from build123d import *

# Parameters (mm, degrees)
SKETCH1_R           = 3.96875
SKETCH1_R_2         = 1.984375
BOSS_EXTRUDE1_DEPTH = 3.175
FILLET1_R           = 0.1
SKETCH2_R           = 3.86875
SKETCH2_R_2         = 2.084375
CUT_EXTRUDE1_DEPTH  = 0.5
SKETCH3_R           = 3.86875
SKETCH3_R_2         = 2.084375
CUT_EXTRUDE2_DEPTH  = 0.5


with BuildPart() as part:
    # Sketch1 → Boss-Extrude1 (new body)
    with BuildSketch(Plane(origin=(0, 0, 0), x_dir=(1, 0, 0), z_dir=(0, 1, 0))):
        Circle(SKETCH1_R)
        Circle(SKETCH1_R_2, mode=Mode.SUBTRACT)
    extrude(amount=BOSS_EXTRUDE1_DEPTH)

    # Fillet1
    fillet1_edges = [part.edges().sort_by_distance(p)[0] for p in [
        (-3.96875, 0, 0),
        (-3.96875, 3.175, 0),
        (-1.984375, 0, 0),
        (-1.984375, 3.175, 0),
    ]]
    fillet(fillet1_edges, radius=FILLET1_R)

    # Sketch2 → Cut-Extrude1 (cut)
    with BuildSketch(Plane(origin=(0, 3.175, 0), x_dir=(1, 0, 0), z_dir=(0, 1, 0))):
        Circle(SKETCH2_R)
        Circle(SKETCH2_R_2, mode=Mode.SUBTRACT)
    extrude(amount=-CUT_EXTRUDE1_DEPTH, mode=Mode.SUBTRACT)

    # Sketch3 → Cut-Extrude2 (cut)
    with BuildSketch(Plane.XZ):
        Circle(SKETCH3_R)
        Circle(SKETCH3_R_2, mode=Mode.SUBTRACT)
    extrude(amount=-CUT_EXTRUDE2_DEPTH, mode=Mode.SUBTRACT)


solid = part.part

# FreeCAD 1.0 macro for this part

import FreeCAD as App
import Part
import Sketcher

V = App.Vector
Q = App.Units.Quantity


def edges_at(feature, points):
    """Names of the edges that pass closest to the given points."""
    edges = feature.Shape.Edges
    near = lambda p: min(range(len(edges)), key=lambda i: edges[i].distToShape(Part.Vertex(*p))[0])
    return sorted({f"Edge{near(p) + 1}" for p in points})

doc = App.newDocument("Part")
body = doc.addObject("PartDesign::Body", "Body")

sketch1 = body.newObject("Sketcher::SketchObject", "Sketch")
sketch1.AttachmentSupport = (doc.getObject("XZ_Plane"), [""])
sketch1.MapMode = "FlatFace"
sketch1.addGeometry(Part.Circle(V(0, 0, 0), V(0, 0, 1), 3.96875), False)
sketch1.addGeometry(Part.Circle(V(0, 0, 0), V(0, 0, 1), 1.984375), False)
sketch1.addConstraint(Sketcher.Constraint("Coincident", 0, 3, -1, 1))
sketch1.addConstraint(Sketcher.Constraint("Coincident", 1, 3, -1, 1))
sketch1.addConstraint(Sketcher.Constraint("Diameter", 0, Q("0.3125 in")))
sketch1.addConstraint(Sketcher.Constraint("Diameter", 1, Q("0.15625 in")))
pad1 = body.newObject("PartDesign::Pad", "Pad")
pad1.Profile = sketch1
pad1.Length = Q("0.125 in")
pad1.Reversed = True
doc.recompute()

fillet = body.newObject("PartDesign::Fillet", "Fillet")
fillet.Base = (pad1, edges_at(pad1, [
    (-3.969, 0, 0),
    (-3.969, 3.175, 0),
    (-1.984, 0, 0),
    (-1.984, 3.175, 0),
]))
fillet.Radius = 0.1

sketch2 = body.newObject("Sketcher::SketchObject", "Sketch001")
sketch2.AttachmentSupport = (doc.getObject("XZ_Plane"), [""])
sketch2.MapMode = "FlatFace"
sketch2.AttachmentOffset = App.Placement(V(0, 0, -0.125 * 25.4), App.Rotation())
sketch2.addGeometry(Part.Circle(V(0, 0, 0), V(0, 0, 1), 3.86875), False)
sketch2.addGeometry(Part.Circle(V(0, 0, 0), V(0, 0, 1), 2.084375), False)
sketch2.addConstraint(Sketcher.Constraint("Coincident", 0, 3, -1, 1))
sketch2.addConstraint(Sketcher.Constraint("Coincident", 1, 3, -1, 1))
sketch2.addConstraint(Sketcher.Constraint("Diameter", 0, 7.7375))
sketch2.addConstraint(Sketcher.Constraint("Diameter", 1, 4.16875))
pocket1 = body.newObject("PartDesign::Pocket", "Pocket")
pocket1.Profile = sketch2
pocket1.Length = 0.5
pocket1.Reversed = True

sketch3 = body.newObject("Sketcher::SketchObject", "Sketch002")
sketch3.AttachmentSupport = (doc.getObject("XZ_Plane"), [""])
sketch3.MapMode = "FlatFace"
sketch3.addGeometry(Part.Circle(V(0, 0, 0), V(0, 0, 1), 3.86875), False)
sketch3.addGeometry(Part.Circle(V(0, 0, 0), V(0, 0, 1), 2.084375), False)
sketch3.addConstraint(Sketcher.Constraint("Coincident", 0, 3, -1, 1))
sketch3.addConstraint(Sketcher.Constraint("Coincident", 1, 3, -1, 1))
sketch3.addConstraint(Sketcher.Constraint("Diameter", 0, 7.7375))
sketch3.addConstraint(Sketcher.Constraint("Diameter", 1, 4.16875))
pocket2 = body.newObject("PartDesign::Pocket", "Pocket001")
pocket2.Profile = sketch3
pocket2.Length = 0.5

doc.recompute()
